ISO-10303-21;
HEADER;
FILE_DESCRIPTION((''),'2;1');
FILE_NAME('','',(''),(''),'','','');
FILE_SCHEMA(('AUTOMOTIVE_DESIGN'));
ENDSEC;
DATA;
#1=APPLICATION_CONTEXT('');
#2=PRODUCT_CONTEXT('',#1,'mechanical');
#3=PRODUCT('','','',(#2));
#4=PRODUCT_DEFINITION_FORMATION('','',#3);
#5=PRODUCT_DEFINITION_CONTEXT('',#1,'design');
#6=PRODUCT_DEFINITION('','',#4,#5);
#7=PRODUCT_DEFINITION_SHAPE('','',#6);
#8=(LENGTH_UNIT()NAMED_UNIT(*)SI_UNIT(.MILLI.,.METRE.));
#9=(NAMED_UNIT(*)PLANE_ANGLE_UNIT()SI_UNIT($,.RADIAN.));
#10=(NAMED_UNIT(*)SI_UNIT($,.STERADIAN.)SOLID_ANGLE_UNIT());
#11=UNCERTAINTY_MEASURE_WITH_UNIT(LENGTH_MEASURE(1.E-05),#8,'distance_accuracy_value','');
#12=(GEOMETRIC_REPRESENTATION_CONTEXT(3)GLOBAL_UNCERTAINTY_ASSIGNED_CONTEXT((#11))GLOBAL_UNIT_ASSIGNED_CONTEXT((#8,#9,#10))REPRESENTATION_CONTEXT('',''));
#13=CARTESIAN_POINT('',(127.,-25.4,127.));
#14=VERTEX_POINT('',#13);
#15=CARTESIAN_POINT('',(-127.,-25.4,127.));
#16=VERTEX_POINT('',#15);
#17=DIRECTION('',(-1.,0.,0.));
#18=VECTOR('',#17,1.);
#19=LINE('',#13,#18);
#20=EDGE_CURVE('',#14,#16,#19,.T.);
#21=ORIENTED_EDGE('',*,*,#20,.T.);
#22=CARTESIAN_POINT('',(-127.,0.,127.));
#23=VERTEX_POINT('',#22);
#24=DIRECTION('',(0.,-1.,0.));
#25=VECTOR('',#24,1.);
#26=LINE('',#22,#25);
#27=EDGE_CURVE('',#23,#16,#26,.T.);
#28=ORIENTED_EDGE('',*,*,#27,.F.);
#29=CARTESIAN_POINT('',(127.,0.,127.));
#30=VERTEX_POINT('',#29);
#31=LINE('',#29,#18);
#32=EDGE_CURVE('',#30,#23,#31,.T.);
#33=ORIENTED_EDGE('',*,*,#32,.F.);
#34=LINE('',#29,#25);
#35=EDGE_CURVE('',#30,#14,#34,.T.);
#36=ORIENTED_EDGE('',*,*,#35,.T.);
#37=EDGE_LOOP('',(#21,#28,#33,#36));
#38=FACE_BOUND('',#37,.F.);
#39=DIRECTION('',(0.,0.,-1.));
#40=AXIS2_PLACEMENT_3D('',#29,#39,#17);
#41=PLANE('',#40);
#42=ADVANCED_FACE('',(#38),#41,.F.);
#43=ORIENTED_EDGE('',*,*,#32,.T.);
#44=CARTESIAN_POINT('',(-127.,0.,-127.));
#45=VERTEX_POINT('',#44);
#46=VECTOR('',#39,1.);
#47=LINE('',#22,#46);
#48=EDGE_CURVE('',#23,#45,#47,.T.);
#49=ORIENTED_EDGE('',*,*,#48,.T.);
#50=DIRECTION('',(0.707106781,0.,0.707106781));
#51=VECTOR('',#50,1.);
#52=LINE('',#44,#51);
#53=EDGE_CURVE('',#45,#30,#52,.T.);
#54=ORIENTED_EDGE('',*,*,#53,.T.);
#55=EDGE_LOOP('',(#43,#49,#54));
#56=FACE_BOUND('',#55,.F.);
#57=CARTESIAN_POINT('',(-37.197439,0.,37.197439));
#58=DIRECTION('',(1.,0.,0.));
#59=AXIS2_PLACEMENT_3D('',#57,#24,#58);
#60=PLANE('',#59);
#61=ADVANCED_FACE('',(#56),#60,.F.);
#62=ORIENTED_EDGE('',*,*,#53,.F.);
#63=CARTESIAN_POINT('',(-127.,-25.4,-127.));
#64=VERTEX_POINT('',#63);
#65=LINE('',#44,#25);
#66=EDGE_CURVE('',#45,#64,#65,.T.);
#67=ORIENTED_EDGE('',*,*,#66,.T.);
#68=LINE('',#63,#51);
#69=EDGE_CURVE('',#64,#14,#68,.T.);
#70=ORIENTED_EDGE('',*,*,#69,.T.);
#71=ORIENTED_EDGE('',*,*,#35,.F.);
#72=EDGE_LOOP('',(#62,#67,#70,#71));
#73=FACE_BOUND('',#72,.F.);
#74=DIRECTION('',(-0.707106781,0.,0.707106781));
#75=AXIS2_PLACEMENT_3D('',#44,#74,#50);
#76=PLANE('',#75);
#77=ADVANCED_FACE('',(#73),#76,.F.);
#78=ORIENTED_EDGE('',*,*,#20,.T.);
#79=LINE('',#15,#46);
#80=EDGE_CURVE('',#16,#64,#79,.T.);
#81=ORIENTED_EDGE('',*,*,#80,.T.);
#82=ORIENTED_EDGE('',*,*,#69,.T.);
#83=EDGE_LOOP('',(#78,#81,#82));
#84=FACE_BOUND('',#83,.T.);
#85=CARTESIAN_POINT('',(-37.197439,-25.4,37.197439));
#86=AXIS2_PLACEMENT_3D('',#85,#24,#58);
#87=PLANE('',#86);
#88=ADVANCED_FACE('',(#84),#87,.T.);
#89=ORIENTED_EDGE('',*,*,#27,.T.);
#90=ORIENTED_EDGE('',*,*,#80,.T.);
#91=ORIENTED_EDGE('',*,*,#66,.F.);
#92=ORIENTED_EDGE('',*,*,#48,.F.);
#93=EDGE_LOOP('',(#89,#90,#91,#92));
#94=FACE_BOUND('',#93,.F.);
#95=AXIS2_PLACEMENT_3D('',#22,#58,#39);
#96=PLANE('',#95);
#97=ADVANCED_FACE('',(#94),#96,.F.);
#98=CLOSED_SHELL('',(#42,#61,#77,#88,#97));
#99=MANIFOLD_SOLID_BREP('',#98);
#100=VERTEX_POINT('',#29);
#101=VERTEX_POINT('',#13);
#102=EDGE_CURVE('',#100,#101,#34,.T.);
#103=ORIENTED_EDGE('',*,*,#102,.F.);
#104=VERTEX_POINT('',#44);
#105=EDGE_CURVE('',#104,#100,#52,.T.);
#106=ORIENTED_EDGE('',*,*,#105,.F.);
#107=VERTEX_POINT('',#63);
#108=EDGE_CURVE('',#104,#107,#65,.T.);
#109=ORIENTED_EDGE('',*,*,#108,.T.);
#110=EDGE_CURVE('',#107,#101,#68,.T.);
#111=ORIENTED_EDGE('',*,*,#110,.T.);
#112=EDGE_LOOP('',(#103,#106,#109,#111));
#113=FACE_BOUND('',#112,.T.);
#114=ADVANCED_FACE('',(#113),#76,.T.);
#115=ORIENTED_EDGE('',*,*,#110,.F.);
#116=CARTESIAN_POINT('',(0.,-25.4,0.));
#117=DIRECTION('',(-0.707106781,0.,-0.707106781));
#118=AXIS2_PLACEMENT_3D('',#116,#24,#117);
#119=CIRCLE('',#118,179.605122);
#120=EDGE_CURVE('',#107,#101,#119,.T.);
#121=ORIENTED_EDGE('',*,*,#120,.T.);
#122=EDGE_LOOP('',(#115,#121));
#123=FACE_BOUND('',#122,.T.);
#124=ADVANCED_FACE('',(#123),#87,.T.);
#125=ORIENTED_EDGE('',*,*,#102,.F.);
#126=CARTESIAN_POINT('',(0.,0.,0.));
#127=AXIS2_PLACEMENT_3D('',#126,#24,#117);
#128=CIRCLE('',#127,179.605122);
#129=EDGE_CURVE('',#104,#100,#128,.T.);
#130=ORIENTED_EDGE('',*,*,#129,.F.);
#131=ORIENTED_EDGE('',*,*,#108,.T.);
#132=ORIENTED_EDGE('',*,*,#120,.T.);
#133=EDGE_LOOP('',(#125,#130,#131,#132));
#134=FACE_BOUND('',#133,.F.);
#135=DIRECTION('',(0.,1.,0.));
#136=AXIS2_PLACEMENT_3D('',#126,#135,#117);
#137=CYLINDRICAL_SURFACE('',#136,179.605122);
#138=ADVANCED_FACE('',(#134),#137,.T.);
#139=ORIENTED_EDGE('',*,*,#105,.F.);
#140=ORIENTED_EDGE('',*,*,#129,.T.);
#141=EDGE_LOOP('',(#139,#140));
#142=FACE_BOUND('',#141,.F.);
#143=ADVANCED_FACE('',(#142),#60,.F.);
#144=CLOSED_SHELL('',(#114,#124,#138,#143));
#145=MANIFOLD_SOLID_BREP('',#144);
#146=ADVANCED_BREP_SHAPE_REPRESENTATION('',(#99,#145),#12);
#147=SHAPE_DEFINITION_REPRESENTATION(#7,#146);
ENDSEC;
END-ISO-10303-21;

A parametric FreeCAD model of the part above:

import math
import FreeCAD as App
import Part
import Sketcher
Q = App.Units.Quantity


def add_polygon(sketch, points):
    """Adds a closed chain of lines whose ends are joined by coincident constraints."""
    first, n = sketch.GeometryCount, len(points)
    for a, b in zip(points, points[1:] + points[:1]):
        sketch.addGeometry(Part.LineSegment(App.Vector(*a, 0), App.Vector(*b, 0)), False)
    for i in range(n):
        sketch.addConstraint(Sketcher.Constraint("Coincident", first + i, 2, first + (i + 1) % n, 1))

doc = App.newDocument("Part")
body = doc.addObject("PartDesign::Body", "Body")

# Sketch on XZ plane
sketch1 = doc.addObject("Sketcher::SketchObject", "Sketch")
body.addObject(sketch1)
sketch1.AttachmentSupport = (doc.XZ_Plane, [""])
sketch1.MapMode = "FlatFace"
add_polygon(sketch1, [(127, 127), (-127, 127), (-127, -127)])  # lines 0-2
sketch1.addConstraint([
    Sketcher.Constraint("Horizontal", 0),
    Sketcher.Constraint("Vertical", 1),
    Sketcher.Constraint("Symmetric", 1, 2, 2, 2, -1, 1),
    Sketcher.Constraint("Equal", 0, 1),
    Sketcher.Constraint("DistanceX", 0, 2, 0, 1, Q("10 in")),
])
pad1 = doc.addObject("PartDesign::Pad", "Pad")
body.addObject(pad1)
pad1.Profile = sketch1
pad1.Length = Q("1 in")
body2 = doc.addObject("PartDesign::Body", "Body001")

# Sketch on XZ plane
sketch2 = doc.addObject("Sketcher::SketchObject", "Sketch001")
body2.addObject(sketch2)
sketch2.AttachmentSupport = (doc.getObject("XZ_Plane001"), [""])
sketch2.MapMode = "FlatFace"
sketch2.addGeometry([
    Part.LineSegment(App.Vector(127, 127, 0), App.Vector(-127, 127, 0)),
    Part.LineSegment(App.Vector(-127, 127, 0), App.Vector(-127, -127, 0)),
    Part.ArcOfCircle(Part.Circle(App.Vector(0, 0, 0), App.Vector(0, 0, 1), 180), math.radians(-135), math.radians(45)),
], False)
sketch2.addConstraint([
    Sketcher.Constraint("Coincident", 0, 2, 1, 1),
    Sketcher.Constraint("Coincident", 1, 2, 2, 1),
    Sketcher.Constraint("Coincident", 2, 2, 0, 1),
    Sketcher.Constraint("Horizontal", 0),
    Sketcher.Constraint("Vertical", 1),
    Sketcher.Constraint("Coincident", 2, 3, -1, 1),
    Sketcher.Constraint("Equal", 0, 1),
    Sketcher.Constraint("DistanceX", 0, 2, 0, 1, Q("10 in")),
    Sketcher.Constraint("DistanceX", 0, 2, -1, 1, Q("5 in")),
])
pad2 = doc.addObject("PartDesign::Pad", "Pad001")
body2.addObject(pad2)
pad2.Profile = sketch2
pad2.Length = Q("1 in")
doc.recompute()

body3 = doc.addObject("PartDesign::Body", "Body002")
body3.BaseFeature = body
boolean = doc.addObject("PartDesign::Boolean", "Boolean")
body2.addObject(boolean)
boolean.Type = "Cut"
boolean.addObjects([body3])
doc.recompute()

doc.recompute()
